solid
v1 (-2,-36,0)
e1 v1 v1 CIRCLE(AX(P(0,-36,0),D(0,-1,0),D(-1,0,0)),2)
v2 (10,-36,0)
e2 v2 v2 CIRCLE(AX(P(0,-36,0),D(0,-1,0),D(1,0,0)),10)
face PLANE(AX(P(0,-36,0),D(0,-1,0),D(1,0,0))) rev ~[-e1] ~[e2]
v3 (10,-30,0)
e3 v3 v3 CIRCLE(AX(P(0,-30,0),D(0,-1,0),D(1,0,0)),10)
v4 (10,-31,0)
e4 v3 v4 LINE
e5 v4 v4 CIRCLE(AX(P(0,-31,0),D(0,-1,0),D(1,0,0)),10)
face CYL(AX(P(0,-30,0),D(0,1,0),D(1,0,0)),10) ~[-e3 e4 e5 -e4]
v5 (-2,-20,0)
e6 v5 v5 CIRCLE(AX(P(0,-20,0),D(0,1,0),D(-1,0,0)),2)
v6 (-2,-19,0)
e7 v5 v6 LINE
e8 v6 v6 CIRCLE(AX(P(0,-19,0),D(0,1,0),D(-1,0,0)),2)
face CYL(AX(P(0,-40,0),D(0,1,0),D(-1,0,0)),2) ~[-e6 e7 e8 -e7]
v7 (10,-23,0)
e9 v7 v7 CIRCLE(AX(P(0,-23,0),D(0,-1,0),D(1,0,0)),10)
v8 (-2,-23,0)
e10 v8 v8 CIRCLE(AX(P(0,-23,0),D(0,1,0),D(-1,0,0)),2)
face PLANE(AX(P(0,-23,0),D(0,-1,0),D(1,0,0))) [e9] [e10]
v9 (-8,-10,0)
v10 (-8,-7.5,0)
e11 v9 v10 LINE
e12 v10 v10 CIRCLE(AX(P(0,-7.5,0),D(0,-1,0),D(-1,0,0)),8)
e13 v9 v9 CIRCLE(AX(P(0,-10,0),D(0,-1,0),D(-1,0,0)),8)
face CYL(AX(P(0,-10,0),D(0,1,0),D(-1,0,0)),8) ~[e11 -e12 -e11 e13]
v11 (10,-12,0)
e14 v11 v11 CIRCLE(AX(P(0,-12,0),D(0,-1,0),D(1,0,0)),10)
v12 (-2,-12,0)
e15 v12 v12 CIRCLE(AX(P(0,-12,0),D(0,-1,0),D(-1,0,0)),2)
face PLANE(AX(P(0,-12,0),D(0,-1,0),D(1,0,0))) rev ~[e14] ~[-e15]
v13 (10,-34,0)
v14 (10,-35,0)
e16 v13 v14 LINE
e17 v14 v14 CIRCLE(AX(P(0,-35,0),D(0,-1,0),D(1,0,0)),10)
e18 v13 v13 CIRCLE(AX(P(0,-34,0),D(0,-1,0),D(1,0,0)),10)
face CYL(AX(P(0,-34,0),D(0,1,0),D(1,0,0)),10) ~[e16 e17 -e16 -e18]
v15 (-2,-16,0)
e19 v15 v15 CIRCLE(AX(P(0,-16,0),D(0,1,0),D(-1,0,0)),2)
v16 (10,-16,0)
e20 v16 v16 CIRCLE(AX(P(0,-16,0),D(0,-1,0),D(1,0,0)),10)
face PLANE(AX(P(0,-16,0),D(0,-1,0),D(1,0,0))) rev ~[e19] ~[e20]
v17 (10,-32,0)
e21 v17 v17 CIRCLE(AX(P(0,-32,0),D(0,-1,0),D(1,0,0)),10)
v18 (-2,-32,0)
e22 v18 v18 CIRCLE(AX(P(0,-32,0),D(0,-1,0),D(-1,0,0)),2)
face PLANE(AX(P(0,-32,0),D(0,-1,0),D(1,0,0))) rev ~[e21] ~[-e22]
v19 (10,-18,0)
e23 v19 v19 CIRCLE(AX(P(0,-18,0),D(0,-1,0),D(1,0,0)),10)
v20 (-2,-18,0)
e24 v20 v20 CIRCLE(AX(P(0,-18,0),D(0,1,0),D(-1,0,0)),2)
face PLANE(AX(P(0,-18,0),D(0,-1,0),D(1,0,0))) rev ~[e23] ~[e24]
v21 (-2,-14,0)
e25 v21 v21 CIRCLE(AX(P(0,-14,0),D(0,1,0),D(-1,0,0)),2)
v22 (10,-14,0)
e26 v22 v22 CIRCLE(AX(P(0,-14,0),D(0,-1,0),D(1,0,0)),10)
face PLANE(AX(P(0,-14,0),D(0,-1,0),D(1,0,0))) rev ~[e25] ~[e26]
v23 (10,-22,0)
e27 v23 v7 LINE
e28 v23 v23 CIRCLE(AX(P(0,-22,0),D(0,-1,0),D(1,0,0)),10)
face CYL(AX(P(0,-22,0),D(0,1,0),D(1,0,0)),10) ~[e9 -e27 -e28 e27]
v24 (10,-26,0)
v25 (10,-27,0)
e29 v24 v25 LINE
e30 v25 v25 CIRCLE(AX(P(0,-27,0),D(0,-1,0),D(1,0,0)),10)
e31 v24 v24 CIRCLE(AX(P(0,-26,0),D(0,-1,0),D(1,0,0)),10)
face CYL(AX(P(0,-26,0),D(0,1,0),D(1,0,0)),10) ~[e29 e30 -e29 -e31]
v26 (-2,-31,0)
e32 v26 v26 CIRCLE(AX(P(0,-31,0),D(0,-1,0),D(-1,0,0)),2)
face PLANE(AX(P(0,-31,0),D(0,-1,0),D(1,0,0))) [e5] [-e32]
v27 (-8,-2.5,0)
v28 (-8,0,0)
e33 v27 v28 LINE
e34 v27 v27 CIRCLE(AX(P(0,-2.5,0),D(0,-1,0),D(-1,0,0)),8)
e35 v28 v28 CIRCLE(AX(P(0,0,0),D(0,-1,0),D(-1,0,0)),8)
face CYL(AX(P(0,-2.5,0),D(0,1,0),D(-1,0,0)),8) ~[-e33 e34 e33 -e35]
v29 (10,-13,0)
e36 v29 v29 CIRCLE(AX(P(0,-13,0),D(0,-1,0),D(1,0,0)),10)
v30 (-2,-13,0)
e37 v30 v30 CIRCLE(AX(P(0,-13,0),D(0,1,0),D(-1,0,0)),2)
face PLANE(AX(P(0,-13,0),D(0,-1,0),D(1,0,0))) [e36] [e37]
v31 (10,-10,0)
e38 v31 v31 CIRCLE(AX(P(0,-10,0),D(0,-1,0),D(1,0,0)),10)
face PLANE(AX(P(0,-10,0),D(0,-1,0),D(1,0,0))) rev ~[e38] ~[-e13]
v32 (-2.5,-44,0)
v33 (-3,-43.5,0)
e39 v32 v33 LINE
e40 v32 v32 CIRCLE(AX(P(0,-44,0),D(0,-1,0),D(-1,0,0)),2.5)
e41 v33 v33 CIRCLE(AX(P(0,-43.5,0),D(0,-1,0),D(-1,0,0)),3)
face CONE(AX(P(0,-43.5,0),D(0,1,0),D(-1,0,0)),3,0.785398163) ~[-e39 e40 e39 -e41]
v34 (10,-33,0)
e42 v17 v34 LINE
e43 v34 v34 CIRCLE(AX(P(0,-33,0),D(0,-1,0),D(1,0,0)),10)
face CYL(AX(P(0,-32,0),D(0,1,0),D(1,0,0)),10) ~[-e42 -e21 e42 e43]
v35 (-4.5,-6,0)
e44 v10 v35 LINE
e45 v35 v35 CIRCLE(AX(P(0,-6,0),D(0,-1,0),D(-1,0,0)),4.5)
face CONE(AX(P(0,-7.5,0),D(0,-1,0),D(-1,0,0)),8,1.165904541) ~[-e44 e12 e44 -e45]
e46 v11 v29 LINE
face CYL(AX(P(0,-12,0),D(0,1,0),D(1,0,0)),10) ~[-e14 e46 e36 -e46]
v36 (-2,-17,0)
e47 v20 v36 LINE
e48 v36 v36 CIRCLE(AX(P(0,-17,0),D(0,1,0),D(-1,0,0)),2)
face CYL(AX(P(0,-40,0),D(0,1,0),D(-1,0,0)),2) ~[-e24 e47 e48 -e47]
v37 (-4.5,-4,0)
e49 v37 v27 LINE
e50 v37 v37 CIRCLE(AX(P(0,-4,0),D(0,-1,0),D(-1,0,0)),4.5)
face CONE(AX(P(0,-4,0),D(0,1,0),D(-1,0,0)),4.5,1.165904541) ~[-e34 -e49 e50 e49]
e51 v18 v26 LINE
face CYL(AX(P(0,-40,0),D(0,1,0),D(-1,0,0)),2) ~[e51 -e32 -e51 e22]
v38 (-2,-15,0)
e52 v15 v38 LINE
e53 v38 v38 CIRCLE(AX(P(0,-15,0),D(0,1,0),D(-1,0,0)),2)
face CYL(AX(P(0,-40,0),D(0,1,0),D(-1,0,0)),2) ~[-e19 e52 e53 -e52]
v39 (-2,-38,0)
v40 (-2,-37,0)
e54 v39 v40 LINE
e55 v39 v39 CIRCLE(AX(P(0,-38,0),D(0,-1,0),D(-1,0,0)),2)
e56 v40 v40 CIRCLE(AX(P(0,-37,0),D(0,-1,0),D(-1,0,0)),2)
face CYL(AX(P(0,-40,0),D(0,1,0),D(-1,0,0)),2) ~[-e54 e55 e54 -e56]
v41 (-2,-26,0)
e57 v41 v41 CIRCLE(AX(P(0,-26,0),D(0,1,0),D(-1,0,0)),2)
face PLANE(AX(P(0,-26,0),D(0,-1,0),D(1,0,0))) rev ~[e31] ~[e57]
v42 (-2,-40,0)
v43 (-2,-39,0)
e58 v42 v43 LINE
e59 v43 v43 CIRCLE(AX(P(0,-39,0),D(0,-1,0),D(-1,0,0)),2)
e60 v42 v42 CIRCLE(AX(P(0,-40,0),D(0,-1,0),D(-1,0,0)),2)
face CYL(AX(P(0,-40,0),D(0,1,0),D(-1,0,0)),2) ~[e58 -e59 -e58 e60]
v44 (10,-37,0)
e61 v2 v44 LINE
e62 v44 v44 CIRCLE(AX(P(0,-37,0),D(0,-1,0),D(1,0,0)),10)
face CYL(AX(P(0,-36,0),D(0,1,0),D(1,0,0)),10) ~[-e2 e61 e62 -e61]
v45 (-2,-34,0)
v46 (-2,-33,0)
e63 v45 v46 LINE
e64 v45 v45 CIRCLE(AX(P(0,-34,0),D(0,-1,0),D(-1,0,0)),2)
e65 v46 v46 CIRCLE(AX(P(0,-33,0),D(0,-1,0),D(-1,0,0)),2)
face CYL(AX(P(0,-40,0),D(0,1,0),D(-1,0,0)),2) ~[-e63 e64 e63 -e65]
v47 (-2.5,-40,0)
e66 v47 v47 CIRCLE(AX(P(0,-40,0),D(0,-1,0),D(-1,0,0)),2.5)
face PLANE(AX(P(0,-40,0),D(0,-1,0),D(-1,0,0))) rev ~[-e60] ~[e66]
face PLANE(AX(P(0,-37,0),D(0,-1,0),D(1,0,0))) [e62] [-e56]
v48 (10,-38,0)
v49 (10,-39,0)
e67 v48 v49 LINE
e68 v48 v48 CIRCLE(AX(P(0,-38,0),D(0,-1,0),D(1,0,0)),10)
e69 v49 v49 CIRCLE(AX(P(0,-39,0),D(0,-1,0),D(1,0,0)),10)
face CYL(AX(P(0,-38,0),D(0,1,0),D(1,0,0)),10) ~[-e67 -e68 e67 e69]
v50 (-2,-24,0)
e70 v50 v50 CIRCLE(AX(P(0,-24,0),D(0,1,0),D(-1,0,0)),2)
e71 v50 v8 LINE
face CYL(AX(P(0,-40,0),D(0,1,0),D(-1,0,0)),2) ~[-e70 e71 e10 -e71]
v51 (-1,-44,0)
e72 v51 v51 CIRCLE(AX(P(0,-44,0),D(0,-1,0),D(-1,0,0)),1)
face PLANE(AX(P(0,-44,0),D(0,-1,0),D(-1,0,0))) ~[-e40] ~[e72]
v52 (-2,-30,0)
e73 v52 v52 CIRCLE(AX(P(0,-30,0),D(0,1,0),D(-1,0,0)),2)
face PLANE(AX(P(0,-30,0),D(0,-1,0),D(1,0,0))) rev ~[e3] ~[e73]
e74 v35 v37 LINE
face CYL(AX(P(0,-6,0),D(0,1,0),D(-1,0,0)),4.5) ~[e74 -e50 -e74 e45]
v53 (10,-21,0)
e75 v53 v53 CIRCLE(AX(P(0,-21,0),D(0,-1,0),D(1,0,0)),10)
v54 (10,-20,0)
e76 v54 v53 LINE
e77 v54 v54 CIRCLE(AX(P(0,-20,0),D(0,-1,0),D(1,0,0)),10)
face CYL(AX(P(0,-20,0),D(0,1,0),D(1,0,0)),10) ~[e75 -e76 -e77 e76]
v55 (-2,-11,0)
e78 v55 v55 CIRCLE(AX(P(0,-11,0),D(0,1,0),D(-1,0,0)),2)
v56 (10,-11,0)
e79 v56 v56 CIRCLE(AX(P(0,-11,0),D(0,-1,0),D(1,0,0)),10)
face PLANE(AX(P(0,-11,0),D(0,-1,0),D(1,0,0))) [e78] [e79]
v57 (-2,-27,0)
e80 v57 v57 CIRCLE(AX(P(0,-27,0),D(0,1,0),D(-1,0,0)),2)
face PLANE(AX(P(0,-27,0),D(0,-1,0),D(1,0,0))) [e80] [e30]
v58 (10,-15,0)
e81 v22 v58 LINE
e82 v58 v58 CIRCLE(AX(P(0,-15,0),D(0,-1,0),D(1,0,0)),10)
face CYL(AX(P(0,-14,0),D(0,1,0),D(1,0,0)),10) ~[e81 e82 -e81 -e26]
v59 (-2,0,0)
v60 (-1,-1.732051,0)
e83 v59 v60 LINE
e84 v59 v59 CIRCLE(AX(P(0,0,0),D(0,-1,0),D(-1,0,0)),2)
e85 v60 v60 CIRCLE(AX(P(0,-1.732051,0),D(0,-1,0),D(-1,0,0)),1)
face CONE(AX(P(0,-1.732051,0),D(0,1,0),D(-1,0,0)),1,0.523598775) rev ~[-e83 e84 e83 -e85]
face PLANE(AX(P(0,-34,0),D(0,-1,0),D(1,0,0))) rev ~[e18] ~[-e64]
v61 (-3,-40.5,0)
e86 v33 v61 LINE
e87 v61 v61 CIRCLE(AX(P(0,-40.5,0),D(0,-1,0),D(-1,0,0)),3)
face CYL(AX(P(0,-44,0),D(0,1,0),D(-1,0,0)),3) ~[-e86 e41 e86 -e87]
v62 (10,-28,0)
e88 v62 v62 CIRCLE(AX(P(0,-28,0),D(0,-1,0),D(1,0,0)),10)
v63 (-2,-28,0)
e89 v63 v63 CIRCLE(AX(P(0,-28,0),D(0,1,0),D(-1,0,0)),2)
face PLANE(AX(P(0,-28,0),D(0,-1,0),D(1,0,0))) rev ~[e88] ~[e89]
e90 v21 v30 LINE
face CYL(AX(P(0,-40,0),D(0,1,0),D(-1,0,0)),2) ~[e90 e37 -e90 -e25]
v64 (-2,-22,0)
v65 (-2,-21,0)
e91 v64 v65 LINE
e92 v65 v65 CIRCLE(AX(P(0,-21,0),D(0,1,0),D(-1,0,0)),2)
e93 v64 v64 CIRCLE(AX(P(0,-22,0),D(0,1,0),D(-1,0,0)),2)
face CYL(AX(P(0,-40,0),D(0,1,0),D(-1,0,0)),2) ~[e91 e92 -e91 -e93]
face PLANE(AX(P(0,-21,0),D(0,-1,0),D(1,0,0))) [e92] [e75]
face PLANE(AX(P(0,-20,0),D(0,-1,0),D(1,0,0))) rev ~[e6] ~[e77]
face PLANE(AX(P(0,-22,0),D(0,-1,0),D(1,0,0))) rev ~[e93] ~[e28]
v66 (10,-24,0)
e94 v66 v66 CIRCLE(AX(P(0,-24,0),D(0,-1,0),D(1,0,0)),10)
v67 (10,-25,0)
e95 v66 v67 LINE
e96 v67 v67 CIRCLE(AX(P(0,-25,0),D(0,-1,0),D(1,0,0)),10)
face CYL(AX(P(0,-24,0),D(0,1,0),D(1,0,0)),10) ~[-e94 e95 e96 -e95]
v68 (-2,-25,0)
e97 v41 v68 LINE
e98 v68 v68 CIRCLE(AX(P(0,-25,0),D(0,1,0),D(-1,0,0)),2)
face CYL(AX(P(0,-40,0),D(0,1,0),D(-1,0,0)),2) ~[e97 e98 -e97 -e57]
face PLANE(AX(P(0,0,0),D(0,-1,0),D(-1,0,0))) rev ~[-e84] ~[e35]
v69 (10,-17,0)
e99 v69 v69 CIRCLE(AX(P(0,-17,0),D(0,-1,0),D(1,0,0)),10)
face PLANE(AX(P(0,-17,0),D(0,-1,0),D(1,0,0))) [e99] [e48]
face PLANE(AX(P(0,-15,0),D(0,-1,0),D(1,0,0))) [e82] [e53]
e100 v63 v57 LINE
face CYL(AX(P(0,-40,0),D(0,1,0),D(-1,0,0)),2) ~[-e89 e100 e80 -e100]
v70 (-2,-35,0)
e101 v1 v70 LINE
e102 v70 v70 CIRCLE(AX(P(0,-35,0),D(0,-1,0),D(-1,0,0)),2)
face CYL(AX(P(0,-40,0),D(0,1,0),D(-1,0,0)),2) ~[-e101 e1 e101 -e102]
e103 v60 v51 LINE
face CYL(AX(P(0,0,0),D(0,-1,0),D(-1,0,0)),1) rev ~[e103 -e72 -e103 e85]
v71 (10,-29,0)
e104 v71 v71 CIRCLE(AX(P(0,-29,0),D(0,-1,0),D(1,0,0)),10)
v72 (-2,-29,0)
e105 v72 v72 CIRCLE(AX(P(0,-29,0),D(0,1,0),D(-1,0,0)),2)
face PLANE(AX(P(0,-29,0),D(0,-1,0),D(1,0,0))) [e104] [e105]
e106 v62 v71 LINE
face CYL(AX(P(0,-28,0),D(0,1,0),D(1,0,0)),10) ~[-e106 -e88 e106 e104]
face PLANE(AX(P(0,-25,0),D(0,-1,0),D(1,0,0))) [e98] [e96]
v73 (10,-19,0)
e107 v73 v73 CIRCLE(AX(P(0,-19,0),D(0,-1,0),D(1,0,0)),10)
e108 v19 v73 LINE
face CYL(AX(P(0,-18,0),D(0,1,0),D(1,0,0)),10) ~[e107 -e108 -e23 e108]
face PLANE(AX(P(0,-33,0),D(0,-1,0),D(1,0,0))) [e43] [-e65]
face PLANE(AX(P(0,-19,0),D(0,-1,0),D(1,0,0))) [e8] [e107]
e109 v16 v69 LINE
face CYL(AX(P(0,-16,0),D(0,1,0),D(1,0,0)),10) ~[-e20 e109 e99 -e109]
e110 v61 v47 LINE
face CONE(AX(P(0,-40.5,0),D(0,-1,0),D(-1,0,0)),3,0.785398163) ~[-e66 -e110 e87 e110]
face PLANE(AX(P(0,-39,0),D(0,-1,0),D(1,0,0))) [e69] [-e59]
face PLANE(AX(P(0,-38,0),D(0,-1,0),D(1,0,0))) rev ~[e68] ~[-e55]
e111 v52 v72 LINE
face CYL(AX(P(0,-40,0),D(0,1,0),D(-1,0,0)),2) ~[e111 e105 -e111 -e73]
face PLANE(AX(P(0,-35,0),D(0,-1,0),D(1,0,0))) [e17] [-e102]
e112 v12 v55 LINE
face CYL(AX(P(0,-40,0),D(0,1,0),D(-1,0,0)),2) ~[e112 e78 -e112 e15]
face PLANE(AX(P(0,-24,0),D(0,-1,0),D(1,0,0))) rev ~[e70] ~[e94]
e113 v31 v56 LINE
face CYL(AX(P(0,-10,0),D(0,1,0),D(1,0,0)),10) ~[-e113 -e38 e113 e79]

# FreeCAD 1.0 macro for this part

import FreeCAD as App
import Part
import Sketcher

V = App.Vector
Q = App.Units.Quantity


def edges_at(feature, points):
    """Names of the edges that pass closest to the given points."""
    edges = feature.Shape.Edges
    near = lambda p: min(range(len(edges)), key=lambda i: edges[i].distToShape(Part.Vertex(*p))[0])
    return sorted({f"Edge{near(p) + 1}" for p in points})

doc = App.newDocument("Part")
params = doc.addObject("Spreadsheet::Sheet", "Params")
for row, (alias, value) in enumerate([
    ("sketch1_width", "7 mm"),
    ("sketch1_width2", "6 mm"),
    ("sketch1_width3", "1 mm"),
    ("sketch1_height", "44 mm"),
    ("sketch1_height2", "30 mm"),
    ("revolution_angle", "360 deg"),
    ("sketch2_diameter", "20 mm"),
    ("sketch2_diameter2", "4 mm"),
    ("pad1_length", "1 mm"),
    ("linearpattern_pitch", "2 mm"),
    ("chamfer_size", "1 mm"),
    ("chamfer_size2", "1.732051 mm"),
    ("chamfer2_size", "0.5 mm"),
], start=1):
    params.set(f"A{row}", alias)
    params.set(f"B{row}", "=" + value)
    params.setAlias(f"B{row}", alias)

body = doc.addObject("PartDesign::Body", "Body")

# Sketch on XY plane
sketch1 = body.newObject("Sketcher::SketchObject", "Sketch")
sketch1.AttachmentSupport = (doc.getObject("XY_Plane"), [""])
sketch1.MapMode = "FlatFace"
sketch1.addGeometry(Part.LineSegment(V(-1, -44, 0), V(-1, 0, 0)), False)
sketch1.addGeometry(Part.LineSegment(V(-1, 0, 0), V(-8, 0, 0)), False)
sketch1.addGeometry(Part.LineSegment(V(-8, 0, 0), V(-8, -2.5, 0)), False)
sketch1.addGeometry(Part.LineSegment(V(-8, -2.5, 0), V(-4.5, -4, 0)), False)
sketch1.addGeometry(Part.LineSegment(V(-4.5, -4, 0), V(-4.5, -6, 0)), False)
sketch1.addGeometry(Part.LineSegment(V(-4.5, -6, 0), V(-8, -7.5, 0)), False)
sketch1.addGeometry(Part.LineSegment(V(-8, -7.5, 0), V(-8, -10, 0)), False)
sketch1.addGeometry(Part.LineSegment(V(-8, -10, 0), V(-2, -10, 0)), False)
sketch1.addGeometry(Part.LineSegment(V(-2, -10, 0), V(-2, -40, 0)), False)
sketch1.addGeometry(Part.LineSegment(V(-2, -40, 0), V(-3, -40, 0)), False)
sketch1.addGeometry(Part.LineSegment(V(-3, -40, 0), V(-3, -44, 0)), False)
sketch1.addGeometry(Part.LineSegment(V(-3, -44, 0), V(-1, -44, 0)), False)
sketch1.addConstraint(Sketcher.Constraint("Coincident", 0, 2, 1, 1))
sketch1.addConstraint(Sketcher.Constraint("Coincident", 1, 2, 2, 1))
sketch1.addConstraint(Sketcher.Constraint("Coincident", 2, 2, 3, 1))
sketch1.addConstraint(Sketcher.Constraint("Coincident", 3, 2, 4, 1))
sketch1.addConstraint(Sketcher.Constraint("Coincident", 4, 2, 5, 1))
sketch1.addConstraint(Sketcher.Constraint("Coincident", 5, 2, 6, 1))
sketch1.addConstraint(Sketcher.Constraint("Coincident", 6, 2, 7, 1))
sketch1.addConstraint(Sketcher.Constraint("Coincident", 7, 2, 8, 1))
sketch1.addConstraint(Sketcher.Constraint("Coincident", 8, 2, 9, 1))
sketch1.addConstraint(Sketcher.Constraint("Coincident", 9, 2, 10, 1))
sketch1.addConstraint(Sketcher.Constraint("Coincident", 10, 2, 11, 1))
sketch1.addConstraint(Sketcher.Constraint("Coincident", 11, 2, 0, 1))
sketch1.addConstraint(Sketcher.Constraint("Vertical", 0))
sketch1.addConstraint(Sketcher.Constraint("Horizontal", 1))
sketch1.addConstraint(Sketcher.Constraint("Vertical", 2))
sketch1.addConstraint(Sketcher.Constraint("Vertical", 4))
sketch1.addConstraint(Sketcher.Constraint("Vertical", 6))
sketch1.addConstraint(Sketcher.Constraint("Horizontal", 7))
sketch1.addConstraint(Sketcher.Constraint("Vertical", 8))
sketch1.addConstraint(Sketcher.Constraint("Horizontal", 9))
sketch1.addConstraint(Sketcher.Constraint("Vertical", 10))
sketch1.addConstraint(Sketcher.Constraint("Horizontal", 11))
sketch1.addConstraint(Sketcher.Constraint("PointOnObject", 0, 2, -1))
sketch1.addConstraint(Sketcher.Constraint("Vertical", 2, 2, 5, 2))
sketch1.addConstraint(Sketcher.Constraint("Equal", 11, 4))
sketch1.addConstraint(Sketcher.Constraint("Equal", 2, 6))
sketch1.addConstraint(Sketcher.Constraint("Equal", 3, 5))
sketch1.addConstraint(Sketcher.Constraint("DistanceX", 1, 2, 1, 1, Q("7 mm")))
sketch1.addConstraint(Sketcher.Constraint("DistanceX", 7, 1, 7, 2, Q("6 mm")))
sketch1.addConstraint(Sketcher.Constraint("DistanceX", 9, 2, 9, 1, Q("1 mm")))
sketch1.addConstraint(Sketcher.Constraint("DistanceY", 0, 1, 0, 2, Q("44 mm")))
sketch1.addConstraint(Sketcher.Constraint("DistanceY", 8, 2, 8, 1, Q("30 mm")))
sketch1.addConstraint(Sketcher.Constraint("DistanceY", 10, 2, 10, 1, Q("4 mm")))
sketch1.addConstraint(Sketcher.Constraint("DistanceY", 2, 2, 2, 1, Q("2.5 mm")))
sketch1.addConstraint(Sketcher.Constraint("DistanceX", 0, 2, -1, 1, Q("1 mm")))
sketch1.addConstraint(Sketcher.Constraint("DistanceX", 3, 2, -1, 1, Q("4.5 mm")))
sketch1.setExpression("Constraints[27]", "Params.sketch1_width")
sketch1.setExpression("Constraints[28]", "Params.sketch1_width2")
sketch1.setExpression("Constraints[29]", "Params.sketch1_width3")
sketch1.setExpression("Constraints[30]", "Params.sketch1_height")
sketch1.setExpression("Constraints[31]", "Params.sketch1_height2")
revolution = body.newObject("PartDesign::Revolution", "Revolution")
revolution.Profile = sketch1
revolution.ReferenceAxis = (sketch1, ["V_Axis"])
revolution.setExpression("Angle", "Params.revolution_angle")

# Sketch on XZ plane
sketch2 = body.newObject("Sketcher::SketchObject", "Sketch001")
sketch2.AttachmentSupport = (doc.getObject("XZ_Plane"), [""])
sketch2.MapMode = "FlatFace"
sketch2.AttachmentOffset = App.Placement(V(0, 0, 10), App.Rotation())
sketch2.addGeometry(Part.Circle(V(0, 0, 0), V(0, 0, 1), 10), False)
sketch2.addGeometry(Part.Circle(V(0, 0, 0), V(0, 0, 1), 2), False)
sketch2.addConstraint(Sketcher.Constraint("Coincident", 0, 3, -1, 1))
sketch2.addConstraint(Sketcher.Constraint("Coincident", 1, 3, -1, 1))
sketch2.addConstraint(Sketcher.Constraint("Diameter", 0, Q("20 mm")))
sketch2.addConstraint(Sketcher.Constraint("Diameter", 1, Q("4 mm")))
sketch2.setExpression("Constraints[2]", "Params.sketch2_diameter")
sketch2.setExpression("Constraints[3]", "Params.sketch2_diameter2")
pad1 = body.newObject("PartDesign::Pad", "Pad")
pad1.Profile = sketch2
pad1.setExpression("Length", "Params.pad1_length")
doc.recompute()

linearpattern = body.newObject("PartDesign::LinearPattern", "LinearPattern")
linearpattern.Originals = [pad1]
linearpattern.Direction = (doc.getObject("Y_Axis"), [""])
linearpattern.Mode = "offset"
linearpattern.setExpression("Offset", "Params.linearpattern_pitch")
linearpattern.Occurrences = 15
linearpattern.Reversed = True
body.Tip = linearpattern
doc.recompute()

chamfer = body.newObject("PartDesign::Chamfer", "Chamfer")
chamfer.Base = (linearpattern, edges_at(linearpattern, [(1, 0, 0)]))
chamfer.ChamferType = "Two distances"
chamfer.setExpression("Size", "Params.chamfer_size")
chamfer.setExpression("Size2", "Params.chamfer_size2")
chamfer.FlipDirection = True
doc.recompute()

chamfer2 = body.newObject("PartDesign::Chamfer", "Chamfer001")
chamfer2.Base = (chamfer, edges_at(chamfer, [(3, -40, 0), (3, -44, 0)]))
chamfer2.setExpression("Size", "Params.chamfer2_size")

doc.recompute()
